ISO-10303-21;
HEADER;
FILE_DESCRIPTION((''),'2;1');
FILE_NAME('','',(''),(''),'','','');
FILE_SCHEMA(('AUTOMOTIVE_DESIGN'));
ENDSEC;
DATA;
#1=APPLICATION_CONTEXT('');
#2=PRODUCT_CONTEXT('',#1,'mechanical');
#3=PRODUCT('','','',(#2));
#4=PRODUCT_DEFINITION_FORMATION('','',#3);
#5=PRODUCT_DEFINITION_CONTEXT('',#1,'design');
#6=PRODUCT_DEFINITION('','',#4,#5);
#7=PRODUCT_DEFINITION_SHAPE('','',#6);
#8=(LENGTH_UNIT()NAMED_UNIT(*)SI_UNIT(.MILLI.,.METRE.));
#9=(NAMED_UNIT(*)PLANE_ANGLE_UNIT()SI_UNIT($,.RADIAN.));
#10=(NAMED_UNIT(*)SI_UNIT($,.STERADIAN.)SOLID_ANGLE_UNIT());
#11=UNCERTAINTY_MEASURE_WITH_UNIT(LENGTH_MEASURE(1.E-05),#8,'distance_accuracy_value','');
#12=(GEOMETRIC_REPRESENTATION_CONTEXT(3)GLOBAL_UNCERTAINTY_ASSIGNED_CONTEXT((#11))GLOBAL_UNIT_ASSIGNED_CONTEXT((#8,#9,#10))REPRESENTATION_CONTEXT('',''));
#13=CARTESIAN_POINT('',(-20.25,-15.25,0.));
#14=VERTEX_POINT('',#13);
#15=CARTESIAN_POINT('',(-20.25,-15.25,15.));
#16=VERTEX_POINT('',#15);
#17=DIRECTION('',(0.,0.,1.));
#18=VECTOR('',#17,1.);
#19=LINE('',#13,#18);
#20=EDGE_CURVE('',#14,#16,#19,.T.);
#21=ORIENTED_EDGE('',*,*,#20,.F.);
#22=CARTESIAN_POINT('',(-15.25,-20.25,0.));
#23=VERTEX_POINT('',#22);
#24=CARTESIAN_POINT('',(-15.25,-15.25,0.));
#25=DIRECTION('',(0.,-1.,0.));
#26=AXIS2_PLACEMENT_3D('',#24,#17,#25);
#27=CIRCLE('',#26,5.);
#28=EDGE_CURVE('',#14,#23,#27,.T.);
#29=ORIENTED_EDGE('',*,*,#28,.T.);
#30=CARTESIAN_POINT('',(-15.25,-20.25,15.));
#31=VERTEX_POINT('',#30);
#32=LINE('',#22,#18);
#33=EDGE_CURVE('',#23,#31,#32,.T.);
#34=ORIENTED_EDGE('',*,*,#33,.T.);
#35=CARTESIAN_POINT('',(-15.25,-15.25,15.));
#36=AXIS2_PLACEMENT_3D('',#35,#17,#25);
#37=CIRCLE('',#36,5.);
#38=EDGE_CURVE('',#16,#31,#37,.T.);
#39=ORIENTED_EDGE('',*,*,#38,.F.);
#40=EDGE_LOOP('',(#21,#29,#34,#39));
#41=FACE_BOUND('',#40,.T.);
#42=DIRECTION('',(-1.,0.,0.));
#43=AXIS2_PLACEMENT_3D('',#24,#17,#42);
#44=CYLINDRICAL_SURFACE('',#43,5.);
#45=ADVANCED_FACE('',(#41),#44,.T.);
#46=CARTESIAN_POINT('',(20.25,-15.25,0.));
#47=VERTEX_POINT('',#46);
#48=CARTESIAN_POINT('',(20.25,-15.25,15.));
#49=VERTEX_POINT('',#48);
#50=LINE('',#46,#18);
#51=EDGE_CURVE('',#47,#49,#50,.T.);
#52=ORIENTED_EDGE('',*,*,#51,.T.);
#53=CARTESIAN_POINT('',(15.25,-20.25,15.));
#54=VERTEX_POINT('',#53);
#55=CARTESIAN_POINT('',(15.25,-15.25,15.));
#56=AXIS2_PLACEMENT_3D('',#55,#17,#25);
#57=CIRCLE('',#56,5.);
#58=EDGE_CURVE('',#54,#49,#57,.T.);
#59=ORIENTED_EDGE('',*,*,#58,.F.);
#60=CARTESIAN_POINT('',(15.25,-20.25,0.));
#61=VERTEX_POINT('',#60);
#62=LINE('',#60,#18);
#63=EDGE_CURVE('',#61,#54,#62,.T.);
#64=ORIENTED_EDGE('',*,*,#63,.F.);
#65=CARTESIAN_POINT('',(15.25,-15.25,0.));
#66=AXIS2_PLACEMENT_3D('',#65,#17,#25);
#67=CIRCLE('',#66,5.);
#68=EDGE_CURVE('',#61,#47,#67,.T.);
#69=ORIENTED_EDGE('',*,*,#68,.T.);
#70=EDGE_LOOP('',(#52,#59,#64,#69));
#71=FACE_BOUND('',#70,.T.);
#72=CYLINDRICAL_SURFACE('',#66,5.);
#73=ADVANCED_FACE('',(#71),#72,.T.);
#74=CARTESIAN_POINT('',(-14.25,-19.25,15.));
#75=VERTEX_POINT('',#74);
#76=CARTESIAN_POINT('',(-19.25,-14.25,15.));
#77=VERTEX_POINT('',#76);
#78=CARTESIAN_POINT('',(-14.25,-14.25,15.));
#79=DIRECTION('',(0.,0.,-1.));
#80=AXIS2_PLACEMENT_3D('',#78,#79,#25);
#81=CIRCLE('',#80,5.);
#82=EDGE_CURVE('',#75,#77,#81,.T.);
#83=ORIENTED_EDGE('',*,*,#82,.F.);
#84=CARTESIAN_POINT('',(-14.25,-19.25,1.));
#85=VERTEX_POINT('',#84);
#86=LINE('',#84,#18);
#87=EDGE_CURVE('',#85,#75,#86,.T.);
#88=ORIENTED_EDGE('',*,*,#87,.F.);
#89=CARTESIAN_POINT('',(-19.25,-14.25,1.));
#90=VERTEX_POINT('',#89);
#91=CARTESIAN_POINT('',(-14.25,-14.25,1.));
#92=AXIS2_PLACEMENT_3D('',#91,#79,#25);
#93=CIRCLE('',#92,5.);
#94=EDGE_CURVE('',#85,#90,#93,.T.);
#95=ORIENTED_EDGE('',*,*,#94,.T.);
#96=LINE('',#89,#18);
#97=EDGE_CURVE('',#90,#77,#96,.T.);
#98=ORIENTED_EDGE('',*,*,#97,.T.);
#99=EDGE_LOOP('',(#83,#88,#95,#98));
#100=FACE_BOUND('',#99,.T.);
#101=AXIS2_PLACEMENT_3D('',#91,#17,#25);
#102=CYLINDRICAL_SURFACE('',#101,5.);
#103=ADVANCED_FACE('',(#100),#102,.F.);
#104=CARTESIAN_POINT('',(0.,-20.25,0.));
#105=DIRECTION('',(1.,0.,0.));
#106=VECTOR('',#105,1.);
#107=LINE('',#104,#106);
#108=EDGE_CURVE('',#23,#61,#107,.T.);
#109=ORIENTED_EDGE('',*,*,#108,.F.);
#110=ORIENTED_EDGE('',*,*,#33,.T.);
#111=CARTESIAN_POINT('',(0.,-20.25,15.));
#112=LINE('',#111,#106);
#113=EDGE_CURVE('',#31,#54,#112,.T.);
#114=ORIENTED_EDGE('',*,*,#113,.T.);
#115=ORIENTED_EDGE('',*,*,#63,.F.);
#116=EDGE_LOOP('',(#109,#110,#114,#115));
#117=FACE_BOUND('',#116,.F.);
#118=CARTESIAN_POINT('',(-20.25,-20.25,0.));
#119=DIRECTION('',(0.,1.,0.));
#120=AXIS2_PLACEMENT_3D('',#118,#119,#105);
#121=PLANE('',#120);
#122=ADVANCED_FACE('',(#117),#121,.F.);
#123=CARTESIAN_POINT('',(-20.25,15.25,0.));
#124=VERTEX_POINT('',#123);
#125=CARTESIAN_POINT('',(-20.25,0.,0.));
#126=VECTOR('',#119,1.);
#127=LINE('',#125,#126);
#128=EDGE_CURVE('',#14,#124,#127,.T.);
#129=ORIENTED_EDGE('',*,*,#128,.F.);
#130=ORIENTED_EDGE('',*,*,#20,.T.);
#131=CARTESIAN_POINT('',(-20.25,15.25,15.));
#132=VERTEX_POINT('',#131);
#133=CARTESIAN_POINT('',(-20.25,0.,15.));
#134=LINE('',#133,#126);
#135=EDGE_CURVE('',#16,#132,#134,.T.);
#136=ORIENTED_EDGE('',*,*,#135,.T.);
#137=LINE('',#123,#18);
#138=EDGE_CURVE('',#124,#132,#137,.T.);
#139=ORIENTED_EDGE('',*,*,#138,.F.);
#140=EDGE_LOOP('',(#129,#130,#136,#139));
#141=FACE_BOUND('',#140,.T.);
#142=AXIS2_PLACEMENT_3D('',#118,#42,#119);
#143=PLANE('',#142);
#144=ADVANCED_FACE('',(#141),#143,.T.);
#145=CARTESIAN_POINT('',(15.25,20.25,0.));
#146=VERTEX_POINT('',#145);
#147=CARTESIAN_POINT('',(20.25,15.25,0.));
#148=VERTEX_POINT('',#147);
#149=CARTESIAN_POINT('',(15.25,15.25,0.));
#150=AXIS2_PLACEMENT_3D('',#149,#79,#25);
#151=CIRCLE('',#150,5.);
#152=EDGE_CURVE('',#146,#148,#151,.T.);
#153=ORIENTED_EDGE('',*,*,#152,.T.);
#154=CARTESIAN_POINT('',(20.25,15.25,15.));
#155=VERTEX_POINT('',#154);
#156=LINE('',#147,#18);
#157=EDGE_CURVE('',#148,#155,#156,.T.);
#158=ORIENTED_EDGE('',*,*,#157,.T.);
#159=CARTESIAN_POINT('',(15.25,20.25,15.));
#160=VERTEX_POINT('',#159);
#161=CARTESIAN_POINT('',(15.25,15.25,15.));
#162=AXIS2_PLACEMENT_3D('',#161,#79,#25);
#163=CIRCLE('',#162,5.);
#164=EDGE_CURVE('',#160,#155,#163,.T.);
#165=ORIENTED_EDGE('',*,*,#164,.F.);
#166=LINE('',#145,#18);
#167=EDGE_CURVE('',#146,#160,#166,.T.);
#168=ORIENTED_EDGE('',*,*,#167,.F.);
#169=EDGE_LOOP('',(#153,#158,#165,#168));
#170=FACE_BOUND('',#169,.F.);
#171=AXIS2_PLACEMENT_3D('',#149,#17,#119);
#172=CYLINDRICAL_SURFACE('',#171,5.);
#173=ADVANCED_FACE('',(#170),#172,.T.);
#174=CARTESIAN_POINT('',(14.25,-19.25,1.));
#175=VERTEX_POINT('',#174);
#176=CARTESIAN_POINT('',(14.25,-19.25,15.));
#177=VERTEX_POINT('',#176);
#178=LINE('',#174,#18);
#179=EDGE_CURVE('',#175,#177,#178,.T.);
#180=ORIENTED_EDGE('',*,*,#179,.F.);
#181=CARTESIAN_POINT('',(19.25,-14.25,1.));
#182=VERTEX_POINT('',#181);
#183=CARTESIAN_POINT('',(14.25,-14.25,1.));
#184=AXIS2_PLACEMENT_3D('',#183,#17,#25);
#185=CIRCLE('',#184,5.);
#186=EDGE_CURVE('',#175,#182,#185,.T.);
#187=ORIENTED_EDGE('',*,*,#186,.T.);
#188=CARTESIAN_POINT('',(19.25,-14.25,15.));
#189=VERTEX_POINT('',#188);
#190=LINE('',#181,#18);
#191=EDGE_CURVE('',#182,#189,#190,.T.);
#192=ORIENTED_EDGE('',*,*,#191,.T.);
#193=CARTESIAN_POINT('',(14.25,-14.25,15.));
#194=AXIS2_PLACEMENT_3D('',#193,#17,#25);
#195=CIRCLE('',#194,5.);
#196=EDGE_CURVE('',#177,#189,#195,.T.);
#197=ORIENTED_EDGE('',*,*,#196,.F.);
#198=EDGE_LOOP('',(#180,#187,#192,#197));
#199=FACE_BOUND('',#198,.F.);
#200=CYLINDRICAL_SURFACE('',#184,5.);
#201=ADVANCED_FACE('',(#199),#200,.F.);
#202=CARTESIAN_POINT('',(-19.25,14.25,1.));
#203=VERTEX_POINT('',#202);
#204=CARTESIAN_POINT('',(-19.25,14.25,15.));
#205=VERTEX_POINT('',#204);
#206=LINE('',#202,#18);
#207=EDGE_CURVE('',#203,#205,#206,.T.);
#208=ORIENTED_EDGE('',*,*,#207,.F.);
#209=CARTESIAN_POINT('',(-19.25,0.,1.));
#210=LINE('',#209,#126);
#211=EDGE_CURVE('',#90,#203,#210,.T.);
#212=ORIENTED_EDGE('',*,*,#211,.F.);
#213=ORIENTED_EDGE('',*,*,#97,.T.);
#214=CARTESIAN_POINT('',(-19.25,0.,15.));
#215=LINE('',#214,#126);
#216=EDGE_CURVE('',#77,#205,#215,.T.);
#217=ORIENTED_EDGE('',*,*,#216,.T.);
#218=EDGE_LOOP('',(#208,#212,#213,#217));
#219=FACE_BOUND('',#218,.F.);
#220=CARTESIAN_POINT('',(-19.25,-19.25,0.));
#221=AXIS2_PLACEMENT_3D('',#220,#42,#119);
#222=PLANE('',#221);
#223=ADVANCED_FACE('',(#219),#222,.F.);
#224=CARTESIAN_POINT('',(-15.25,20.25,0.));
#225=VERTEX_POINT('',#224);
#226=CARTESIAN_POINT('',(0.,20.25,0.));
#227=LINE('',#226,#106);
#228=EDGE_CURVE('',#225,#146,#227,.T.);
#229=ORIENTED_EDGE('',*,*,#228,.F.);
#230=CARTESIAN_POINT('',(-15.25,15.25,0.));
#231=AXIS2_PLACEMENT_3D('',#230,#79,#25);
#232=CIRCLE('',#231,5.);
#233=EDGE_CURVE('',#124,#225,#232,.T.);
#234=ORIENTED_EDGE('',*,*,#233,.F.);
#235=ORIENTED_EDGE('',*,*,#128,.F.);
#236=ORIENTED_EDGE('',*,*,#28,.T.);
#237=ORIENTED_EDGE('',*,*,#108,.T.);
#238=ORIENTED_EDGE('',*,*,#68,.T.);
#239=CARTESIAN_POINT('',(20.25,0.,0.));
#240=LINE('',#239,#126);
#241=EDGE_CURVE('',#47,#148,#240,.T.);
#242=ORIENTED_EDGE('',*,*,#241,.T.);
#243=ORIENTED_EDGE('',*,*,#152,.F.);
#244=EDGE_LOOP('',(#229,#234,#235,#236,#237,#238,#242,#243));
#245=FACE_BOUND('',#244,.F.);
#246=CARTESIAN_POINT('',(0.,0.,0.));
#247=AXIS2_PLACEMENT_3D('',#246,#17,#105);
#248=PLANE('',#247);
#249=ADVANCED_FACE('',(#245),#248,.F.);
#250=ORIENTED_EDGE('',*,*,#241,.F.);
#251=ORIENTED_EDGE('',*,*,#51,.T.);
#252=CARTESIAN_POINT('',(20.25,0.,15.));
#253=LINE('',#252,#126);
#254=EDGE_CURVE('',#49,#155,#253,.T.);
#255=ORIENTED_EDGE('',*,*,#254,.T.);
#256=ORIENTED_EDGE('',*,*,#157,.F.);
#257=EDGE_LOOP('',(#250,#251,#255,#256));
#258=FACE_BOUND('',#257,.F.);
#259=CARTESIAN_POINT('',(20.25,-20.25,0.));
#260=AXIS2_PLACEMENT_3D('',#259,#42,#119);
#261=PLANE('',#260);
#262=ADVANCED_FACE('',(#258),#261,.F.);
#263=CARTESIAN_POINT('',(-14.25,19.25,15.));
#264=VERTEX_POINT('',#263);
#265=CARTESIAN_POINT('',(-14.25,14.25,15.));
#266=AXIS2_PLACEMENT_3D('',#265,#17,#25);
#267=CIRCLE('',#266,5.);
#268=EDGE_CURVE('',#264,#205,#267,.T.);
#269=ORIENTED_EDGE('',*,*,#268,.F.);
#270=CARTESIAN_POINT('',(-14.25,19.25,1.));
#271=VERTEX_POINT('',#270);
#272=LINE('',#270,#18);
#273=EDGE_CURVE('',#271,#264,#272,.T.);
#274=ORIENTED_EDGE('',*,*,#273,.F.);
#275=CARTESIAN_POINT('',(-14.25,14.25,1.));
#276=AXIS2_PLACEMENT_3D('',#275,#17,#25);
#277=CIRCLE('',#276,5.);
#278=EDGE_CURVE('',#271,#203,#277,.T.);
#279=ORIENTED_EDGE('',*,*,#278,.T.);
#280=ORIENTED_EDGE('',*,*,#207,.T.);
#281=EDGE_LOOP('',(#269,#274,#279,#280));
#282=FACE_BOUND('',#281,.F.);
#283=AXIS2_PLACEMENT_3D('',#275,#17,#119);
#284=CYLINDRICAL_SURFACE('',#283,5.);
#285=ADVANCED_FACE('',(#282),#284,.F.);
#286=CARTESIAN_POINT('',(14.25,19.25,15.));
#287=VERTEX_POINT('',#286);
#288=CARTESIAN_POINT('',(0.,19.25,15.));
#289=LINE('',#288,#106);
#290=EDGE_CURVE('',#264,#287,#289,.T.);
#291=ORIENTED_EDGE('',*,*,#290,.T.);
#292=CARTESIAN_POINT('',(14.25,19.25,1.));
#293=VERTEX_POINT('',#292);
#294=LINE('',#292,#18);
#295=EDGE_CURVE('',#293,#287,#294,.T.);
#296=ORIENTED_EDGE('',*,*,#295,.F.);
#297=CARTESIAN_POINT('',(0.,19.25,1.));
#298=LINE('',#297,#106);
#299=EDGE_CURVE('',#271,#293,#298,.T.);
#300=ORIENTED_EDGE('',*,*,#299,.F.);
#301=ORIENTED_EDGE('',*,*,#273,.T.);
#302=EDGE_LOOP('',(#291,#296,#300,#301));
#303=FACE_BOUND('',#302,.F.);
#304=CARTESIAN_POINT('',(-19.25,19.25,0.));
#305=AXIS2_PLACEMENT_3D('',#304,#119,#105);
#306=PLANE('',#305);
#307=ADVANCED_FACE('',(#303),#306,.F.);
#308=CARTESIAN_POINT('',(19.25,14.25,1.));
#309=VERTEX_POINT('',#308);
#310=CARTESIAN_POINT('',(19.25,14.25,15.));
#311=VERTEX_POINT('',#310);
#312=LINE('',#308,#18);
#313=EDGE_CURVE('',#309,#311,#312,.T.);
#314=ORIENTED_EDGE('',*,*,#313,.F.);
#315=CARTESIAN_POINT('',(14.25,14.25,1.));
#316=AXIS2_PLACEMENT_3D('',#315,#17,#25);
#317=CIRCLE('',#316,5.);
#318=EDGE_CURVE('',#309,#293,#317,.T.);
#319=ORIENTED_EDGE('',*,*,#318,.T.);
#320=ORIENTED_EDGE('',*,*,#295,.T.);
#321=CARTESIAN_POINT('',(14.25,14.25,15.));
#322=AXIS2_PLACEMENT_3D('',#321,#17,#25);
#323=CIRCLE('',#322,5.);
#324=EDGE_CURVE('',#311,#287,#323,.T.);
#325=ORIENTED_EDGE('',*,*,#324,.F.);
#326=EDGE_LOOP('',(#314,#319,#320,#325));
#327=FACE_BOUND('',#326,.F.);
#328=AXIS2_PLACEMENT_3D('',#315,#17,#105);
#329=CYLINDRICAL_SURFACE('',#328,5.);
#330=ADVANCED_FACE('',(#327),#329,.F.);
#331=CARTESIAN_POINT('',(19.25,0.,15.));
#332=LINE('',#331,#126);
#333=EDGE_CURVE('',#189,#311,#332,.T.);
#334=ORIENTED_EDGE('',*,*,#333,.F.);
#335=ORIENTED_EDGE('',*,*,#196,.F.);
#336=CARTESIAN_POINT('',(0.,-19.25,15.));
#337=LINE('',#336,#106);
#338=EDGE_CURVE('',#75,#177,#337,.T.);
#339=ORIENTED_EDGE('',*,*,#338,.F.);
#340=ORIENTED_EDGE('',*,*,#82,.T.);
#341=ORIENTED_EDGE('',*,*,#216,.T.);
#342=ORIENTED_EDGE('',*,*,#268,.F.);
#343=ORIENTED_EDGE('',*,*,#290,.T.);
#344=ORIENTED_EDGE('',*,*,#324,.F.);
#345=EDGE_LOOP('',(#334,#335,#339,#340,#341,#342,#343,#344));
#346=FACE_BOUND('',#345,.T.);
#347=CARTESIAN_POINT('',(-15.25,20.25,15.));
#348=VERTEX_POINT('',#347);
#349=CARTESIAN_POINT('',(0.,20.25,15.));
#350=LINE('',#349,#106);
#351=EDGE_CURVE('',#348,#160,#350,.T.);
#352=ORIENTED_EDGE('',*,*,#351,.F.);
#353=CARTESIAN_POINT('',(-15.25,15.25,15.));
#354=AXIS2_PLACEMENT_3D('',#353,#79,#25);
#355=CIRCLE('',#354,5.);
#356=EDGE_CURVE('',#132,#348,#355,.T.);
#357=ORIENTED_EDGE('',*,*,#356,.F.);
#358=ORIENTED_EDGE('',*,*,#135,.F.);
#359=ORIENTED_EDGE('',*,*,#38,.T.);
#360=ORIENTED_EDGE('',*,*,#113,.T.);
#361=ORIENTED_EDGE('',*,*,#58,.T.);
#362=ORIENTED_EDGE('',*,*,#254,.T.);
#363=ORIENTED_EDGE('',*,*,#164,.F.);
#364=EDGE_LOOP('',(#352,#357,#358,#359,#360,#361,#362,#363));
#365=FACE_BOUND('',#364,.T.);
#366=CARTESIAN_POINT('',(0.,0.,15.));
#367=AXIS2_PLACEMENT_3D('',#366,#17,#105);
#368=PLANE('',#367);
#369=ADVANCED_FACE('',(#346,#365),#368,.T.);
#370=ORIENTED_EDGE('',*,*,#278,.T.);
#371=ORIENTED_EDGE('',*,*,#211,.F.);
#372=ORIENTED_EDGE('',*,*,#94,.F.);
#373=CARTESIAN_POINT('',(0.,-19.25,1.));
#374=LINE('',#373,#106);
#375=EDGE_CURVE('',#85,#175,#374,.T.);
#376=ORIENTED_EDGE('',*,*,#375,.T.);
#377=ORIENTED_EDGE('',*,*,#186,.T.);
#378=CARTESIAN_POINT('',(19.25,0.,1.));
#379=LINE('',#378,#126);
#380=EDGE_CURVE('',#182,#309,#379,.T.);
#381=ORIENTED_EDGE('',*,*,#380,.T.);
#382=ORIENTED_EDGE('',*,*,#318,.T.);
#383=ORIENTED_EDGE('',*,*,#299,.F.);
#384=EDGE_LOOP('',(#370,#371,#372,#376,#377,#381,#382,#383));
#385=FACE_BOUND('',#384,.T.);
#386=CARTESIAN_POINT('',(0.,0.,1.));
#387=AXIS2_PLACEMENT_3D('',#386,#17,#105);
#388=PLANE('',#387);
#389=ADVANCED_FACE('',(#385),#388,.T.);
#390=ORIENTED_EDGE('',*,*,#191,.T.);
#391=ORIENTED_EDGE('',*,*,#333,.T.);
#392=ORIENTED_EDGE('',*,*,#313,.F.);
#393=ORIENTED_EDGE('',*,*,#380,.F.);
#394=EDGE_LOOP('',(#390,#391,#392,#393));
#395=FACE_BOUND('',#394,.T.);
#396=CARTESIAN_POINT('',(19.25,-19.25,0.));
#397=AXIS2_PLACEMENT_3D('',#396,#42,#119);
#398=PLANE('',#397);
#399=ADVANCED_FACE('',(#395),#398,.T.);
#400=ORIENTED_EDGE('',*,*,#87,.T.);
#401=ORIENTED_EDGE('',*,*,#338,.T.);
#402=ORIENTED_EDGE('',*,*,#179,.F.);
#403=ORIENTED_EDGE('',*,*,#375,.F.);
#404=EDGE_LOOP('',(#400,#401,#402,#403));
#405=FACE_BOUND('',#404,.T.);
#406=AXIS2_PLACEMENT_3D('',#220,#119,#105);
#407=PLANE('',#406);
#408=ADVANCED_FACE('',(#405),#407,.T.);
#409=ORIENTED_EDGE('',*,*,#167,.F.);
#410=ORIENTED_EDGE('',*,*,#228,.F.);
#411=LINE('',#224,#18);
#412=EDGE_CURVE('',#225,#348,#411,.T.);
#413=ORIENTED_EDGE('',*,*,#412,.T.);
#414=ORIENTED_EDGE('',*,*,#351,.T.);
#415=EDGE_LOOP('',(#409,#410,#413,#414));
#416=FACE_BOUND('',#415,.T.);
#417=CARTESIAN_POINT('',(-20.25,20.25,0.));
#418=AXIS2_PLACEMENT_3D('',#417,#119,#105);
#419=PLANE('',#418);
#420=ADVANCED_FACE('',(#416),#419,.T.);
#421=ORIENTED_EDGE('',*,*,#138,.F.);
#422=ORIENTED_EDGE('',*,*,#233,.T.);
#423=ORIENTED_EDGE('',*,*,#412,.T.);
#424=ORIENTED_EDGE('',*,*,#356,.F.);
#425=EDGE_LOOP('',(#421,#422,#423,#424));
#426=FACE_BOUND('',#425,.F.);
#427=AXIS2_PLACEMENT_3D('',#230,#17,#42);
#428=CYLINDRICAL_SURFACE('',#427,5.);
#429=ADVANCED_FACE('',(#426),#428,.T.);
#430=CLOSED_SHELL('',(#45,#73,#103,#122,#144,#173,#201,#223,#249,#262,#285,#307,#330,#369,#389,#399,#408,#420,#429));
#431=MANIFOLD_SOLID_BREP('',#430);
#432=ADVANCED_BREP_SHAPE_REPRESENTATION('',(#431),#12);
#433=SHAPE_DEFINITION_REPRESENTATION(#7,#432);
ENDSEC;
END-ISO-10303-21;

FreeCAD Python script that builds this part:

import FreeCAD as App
import Part
import Sketcher

V = App.Vector


def edges_at(feature, points):
    """Names of the edges that pass closest to the given points."""
    edges = feature.Shape.Edges
    near = lambda p: min(range(len(edges)), key=lambda i: edges[i].distToShape(Part.Vertex(*p))[0])
    return sorted({f"Edge{near(p) + 1}" for p in points})

doc = App.newDocument("Part")
body = doc.addObject("PartDesign::Body", "Body")

# Sketch on XY plane
sketch1 = body.newObject("Sketcher::SketchObject", "Sketch")
sketch1.AttachmentSupport = (doc.getObject("XY_Plane"), [""])
sketch1.MapMode = "FlatFace"
sketch1.addGeometry(Part.LineSegment(V(-19, 19, 0), V(-19, -19, 0)), False)
sketch1.addGeometry(Part.LineSegment(V(-19, -19, 0), V(19, -19, 0)), False)
sketch1.addGeometry(Part.LineSegment(V(19, -19, 0), V(19, 19, 0)), False)
sketch1.addGeometry(Part.LineSegment(V(19, 19, 0), V(-19, 19, 0)), False)
sketch1.addConstraint(Sketcher.Constraint("Coincident", 0, 2, 1, 1))
sketch1.addConstraint(Sketcher.Constraint("Coincident", 1, 2, 2, 1))
sketch1.addConstraint(Sketcher.Constraint("Coincident", 2, 2, 3, 1))
sketch1.addConstraint(Sketcher.Constraint("Coincident", 3, 2, 0, 1))
sketch1.addConstraint(Sketcher.Constraint("Vertical", 0))
sketch1.addConstraint(Sketcher.Constraint("Horizontal", 1))
sketch1.addConstraint(Sketcher.Constraint("Vertical", 2))
sketch1.addConstraint(Sketcher.Constraint("Horizontal", 3))
sketch1.addConstraint(Sketcher.Constraint("Symmetric", 0, 2, 2, 2, -1, 1))
sketch1.addConstraint(Sketcher.Constraint("Equal", 3, 0))
sketch1.addConstraint(Sketcher.Constraint("DistanceX", 1, 1, 1, 2, 38.5))
pad1 = body.newObject("PartDesign::Pad", "Pad")
pad1.Profile = sketch1
pad1.Length = 1

# Sketch on XY plane
sketch2 = body.newObject("Sketcher::SketchObject", "Sketch001")
sketch2.AttachmentSupport = (doc.getObject("XY_Plane"), [""])
sketch2.MapMode = "FlatFace"
sketch2.addGeometry(Part.LineSegment(V(-20, 20, 0), V(-20, -20, 0)), False)
sketch2.addGeometry(Part.LineSegment(V(-20, -20, 0), V(20, -20, 0)), False)
sketch2.addGeometry(Part.LineSegment(V(20, -20, 0), V(20, 20, 0)), False)
sketch2.addGeometry(Part.LineSegment(V(20, 20, 0), V(-20, 20, 0)), False)
sketch2.addGeometry(Part.LineSegment(V(19, -19, 0), V(-19, -19, 0)), False)
sketch2.addGeometry(Part.LineSegment(V(-19, -19, 0), V(-19, 19, 0)), False)
sketch2.addGeometry(Part.LineSegment(V(-19, 19, 0), V(19, 19, 0)), False)
sketch2.addGeometry(Part.LineSegment(V(19, 19, 0), V(19, -19, 0)), False)
sketch2.addConstraint(Sketcher.Constraint("Coincident", 0, 2, 1, 1))
sketch2.addConstraint(Sketcher.Constraint("Coincident", 1, 2, 2, 1))
sketch2.addConstraint(Sketcher.Constraint("Coincident", 2, 2, 3, 1))
sketch2.addConstraint(Sketcher.Constraint("Coincident", 3, 2, 0, 1))
sketch2.addConstraint(Sketcher.Constraint("Coincident", 4, 2, 5, 1))
sketch2.addConstraint(Sketcher.Constraint("Coincident", 5, 2, 6, 1))
sketch2.addConstraint(Sketcher.Constraint("Coincident", 6, 2, 7, 1))
sketch2.addConstraint(Sketcher.Constraint("Coincident", 7, 2, 4, 1))
sketch2.addConstraint(Sketcher.Constraint("Vertical", 0))
sketch2.addConstraint(Sketcher.Constraint("Horizontal", 1))
sketch2.addConstraint(Sketcher.Constraint("Vertical", 2))
sketch2.addConstraint(Sketcher.Constraint("Horizontal", 3))
sketch2.addConstraint(Sketcher.Constraint("Horizontal", 4))
sketch2.addConstraint(Sketcher.Constraint("Vertical", 5))
sketch2.addConstraint(Sketcher.Constraint("Horizontal", 6))
sketch2.addConstraint(Sketcher.Constraint("Vertical", 7))
sketch2.addConstraint(Sketcher.Constraint("Symmetric", 0, 2, 2, 2, -1, 1))
sketch2.addConstraint(Sketcher.Constraint("Symmetric", 4, 2, 6, 2, -1, 1))
sketch2.addConstraint(Sketcher.Constraint("Equal", 3, 0))
sketch2.addConstraint(Sketcher.Constraint("Equal", 6, 5))
sketch2.addConstraint(Sketcher.Constraint("DistanceX", 1, 1, 1, 2, 40.5))
sketch2.addConstraint(Sketcher.Constraint("DistanceX", 4, 2, 4, 1, 38.5))
pad2 = body.newObject("PartDesign::Pad", "Pad001")
pad2.Profile = sketch2
pad2.Length = 15
doc.recompute()

fillet = body.newObject("PartDesign::Fillet", "Fillet")
fillet.Base = (pad2, edges_at(pad2, [
    (20.25, -20.25, 7.5),
    (19.25, -19.25, 8),
    (-19.25, -19.25, 8),
    (-19.25, 19.25, 8),
    (19.25, 19.25, 8),
    (-20.25, -20.25, 7.5),
    (-20.25, 20.25, 7.5),
    (20.25, 20.25, 7.5),
]))
fillet.Radius = 5

doc.recompute()
